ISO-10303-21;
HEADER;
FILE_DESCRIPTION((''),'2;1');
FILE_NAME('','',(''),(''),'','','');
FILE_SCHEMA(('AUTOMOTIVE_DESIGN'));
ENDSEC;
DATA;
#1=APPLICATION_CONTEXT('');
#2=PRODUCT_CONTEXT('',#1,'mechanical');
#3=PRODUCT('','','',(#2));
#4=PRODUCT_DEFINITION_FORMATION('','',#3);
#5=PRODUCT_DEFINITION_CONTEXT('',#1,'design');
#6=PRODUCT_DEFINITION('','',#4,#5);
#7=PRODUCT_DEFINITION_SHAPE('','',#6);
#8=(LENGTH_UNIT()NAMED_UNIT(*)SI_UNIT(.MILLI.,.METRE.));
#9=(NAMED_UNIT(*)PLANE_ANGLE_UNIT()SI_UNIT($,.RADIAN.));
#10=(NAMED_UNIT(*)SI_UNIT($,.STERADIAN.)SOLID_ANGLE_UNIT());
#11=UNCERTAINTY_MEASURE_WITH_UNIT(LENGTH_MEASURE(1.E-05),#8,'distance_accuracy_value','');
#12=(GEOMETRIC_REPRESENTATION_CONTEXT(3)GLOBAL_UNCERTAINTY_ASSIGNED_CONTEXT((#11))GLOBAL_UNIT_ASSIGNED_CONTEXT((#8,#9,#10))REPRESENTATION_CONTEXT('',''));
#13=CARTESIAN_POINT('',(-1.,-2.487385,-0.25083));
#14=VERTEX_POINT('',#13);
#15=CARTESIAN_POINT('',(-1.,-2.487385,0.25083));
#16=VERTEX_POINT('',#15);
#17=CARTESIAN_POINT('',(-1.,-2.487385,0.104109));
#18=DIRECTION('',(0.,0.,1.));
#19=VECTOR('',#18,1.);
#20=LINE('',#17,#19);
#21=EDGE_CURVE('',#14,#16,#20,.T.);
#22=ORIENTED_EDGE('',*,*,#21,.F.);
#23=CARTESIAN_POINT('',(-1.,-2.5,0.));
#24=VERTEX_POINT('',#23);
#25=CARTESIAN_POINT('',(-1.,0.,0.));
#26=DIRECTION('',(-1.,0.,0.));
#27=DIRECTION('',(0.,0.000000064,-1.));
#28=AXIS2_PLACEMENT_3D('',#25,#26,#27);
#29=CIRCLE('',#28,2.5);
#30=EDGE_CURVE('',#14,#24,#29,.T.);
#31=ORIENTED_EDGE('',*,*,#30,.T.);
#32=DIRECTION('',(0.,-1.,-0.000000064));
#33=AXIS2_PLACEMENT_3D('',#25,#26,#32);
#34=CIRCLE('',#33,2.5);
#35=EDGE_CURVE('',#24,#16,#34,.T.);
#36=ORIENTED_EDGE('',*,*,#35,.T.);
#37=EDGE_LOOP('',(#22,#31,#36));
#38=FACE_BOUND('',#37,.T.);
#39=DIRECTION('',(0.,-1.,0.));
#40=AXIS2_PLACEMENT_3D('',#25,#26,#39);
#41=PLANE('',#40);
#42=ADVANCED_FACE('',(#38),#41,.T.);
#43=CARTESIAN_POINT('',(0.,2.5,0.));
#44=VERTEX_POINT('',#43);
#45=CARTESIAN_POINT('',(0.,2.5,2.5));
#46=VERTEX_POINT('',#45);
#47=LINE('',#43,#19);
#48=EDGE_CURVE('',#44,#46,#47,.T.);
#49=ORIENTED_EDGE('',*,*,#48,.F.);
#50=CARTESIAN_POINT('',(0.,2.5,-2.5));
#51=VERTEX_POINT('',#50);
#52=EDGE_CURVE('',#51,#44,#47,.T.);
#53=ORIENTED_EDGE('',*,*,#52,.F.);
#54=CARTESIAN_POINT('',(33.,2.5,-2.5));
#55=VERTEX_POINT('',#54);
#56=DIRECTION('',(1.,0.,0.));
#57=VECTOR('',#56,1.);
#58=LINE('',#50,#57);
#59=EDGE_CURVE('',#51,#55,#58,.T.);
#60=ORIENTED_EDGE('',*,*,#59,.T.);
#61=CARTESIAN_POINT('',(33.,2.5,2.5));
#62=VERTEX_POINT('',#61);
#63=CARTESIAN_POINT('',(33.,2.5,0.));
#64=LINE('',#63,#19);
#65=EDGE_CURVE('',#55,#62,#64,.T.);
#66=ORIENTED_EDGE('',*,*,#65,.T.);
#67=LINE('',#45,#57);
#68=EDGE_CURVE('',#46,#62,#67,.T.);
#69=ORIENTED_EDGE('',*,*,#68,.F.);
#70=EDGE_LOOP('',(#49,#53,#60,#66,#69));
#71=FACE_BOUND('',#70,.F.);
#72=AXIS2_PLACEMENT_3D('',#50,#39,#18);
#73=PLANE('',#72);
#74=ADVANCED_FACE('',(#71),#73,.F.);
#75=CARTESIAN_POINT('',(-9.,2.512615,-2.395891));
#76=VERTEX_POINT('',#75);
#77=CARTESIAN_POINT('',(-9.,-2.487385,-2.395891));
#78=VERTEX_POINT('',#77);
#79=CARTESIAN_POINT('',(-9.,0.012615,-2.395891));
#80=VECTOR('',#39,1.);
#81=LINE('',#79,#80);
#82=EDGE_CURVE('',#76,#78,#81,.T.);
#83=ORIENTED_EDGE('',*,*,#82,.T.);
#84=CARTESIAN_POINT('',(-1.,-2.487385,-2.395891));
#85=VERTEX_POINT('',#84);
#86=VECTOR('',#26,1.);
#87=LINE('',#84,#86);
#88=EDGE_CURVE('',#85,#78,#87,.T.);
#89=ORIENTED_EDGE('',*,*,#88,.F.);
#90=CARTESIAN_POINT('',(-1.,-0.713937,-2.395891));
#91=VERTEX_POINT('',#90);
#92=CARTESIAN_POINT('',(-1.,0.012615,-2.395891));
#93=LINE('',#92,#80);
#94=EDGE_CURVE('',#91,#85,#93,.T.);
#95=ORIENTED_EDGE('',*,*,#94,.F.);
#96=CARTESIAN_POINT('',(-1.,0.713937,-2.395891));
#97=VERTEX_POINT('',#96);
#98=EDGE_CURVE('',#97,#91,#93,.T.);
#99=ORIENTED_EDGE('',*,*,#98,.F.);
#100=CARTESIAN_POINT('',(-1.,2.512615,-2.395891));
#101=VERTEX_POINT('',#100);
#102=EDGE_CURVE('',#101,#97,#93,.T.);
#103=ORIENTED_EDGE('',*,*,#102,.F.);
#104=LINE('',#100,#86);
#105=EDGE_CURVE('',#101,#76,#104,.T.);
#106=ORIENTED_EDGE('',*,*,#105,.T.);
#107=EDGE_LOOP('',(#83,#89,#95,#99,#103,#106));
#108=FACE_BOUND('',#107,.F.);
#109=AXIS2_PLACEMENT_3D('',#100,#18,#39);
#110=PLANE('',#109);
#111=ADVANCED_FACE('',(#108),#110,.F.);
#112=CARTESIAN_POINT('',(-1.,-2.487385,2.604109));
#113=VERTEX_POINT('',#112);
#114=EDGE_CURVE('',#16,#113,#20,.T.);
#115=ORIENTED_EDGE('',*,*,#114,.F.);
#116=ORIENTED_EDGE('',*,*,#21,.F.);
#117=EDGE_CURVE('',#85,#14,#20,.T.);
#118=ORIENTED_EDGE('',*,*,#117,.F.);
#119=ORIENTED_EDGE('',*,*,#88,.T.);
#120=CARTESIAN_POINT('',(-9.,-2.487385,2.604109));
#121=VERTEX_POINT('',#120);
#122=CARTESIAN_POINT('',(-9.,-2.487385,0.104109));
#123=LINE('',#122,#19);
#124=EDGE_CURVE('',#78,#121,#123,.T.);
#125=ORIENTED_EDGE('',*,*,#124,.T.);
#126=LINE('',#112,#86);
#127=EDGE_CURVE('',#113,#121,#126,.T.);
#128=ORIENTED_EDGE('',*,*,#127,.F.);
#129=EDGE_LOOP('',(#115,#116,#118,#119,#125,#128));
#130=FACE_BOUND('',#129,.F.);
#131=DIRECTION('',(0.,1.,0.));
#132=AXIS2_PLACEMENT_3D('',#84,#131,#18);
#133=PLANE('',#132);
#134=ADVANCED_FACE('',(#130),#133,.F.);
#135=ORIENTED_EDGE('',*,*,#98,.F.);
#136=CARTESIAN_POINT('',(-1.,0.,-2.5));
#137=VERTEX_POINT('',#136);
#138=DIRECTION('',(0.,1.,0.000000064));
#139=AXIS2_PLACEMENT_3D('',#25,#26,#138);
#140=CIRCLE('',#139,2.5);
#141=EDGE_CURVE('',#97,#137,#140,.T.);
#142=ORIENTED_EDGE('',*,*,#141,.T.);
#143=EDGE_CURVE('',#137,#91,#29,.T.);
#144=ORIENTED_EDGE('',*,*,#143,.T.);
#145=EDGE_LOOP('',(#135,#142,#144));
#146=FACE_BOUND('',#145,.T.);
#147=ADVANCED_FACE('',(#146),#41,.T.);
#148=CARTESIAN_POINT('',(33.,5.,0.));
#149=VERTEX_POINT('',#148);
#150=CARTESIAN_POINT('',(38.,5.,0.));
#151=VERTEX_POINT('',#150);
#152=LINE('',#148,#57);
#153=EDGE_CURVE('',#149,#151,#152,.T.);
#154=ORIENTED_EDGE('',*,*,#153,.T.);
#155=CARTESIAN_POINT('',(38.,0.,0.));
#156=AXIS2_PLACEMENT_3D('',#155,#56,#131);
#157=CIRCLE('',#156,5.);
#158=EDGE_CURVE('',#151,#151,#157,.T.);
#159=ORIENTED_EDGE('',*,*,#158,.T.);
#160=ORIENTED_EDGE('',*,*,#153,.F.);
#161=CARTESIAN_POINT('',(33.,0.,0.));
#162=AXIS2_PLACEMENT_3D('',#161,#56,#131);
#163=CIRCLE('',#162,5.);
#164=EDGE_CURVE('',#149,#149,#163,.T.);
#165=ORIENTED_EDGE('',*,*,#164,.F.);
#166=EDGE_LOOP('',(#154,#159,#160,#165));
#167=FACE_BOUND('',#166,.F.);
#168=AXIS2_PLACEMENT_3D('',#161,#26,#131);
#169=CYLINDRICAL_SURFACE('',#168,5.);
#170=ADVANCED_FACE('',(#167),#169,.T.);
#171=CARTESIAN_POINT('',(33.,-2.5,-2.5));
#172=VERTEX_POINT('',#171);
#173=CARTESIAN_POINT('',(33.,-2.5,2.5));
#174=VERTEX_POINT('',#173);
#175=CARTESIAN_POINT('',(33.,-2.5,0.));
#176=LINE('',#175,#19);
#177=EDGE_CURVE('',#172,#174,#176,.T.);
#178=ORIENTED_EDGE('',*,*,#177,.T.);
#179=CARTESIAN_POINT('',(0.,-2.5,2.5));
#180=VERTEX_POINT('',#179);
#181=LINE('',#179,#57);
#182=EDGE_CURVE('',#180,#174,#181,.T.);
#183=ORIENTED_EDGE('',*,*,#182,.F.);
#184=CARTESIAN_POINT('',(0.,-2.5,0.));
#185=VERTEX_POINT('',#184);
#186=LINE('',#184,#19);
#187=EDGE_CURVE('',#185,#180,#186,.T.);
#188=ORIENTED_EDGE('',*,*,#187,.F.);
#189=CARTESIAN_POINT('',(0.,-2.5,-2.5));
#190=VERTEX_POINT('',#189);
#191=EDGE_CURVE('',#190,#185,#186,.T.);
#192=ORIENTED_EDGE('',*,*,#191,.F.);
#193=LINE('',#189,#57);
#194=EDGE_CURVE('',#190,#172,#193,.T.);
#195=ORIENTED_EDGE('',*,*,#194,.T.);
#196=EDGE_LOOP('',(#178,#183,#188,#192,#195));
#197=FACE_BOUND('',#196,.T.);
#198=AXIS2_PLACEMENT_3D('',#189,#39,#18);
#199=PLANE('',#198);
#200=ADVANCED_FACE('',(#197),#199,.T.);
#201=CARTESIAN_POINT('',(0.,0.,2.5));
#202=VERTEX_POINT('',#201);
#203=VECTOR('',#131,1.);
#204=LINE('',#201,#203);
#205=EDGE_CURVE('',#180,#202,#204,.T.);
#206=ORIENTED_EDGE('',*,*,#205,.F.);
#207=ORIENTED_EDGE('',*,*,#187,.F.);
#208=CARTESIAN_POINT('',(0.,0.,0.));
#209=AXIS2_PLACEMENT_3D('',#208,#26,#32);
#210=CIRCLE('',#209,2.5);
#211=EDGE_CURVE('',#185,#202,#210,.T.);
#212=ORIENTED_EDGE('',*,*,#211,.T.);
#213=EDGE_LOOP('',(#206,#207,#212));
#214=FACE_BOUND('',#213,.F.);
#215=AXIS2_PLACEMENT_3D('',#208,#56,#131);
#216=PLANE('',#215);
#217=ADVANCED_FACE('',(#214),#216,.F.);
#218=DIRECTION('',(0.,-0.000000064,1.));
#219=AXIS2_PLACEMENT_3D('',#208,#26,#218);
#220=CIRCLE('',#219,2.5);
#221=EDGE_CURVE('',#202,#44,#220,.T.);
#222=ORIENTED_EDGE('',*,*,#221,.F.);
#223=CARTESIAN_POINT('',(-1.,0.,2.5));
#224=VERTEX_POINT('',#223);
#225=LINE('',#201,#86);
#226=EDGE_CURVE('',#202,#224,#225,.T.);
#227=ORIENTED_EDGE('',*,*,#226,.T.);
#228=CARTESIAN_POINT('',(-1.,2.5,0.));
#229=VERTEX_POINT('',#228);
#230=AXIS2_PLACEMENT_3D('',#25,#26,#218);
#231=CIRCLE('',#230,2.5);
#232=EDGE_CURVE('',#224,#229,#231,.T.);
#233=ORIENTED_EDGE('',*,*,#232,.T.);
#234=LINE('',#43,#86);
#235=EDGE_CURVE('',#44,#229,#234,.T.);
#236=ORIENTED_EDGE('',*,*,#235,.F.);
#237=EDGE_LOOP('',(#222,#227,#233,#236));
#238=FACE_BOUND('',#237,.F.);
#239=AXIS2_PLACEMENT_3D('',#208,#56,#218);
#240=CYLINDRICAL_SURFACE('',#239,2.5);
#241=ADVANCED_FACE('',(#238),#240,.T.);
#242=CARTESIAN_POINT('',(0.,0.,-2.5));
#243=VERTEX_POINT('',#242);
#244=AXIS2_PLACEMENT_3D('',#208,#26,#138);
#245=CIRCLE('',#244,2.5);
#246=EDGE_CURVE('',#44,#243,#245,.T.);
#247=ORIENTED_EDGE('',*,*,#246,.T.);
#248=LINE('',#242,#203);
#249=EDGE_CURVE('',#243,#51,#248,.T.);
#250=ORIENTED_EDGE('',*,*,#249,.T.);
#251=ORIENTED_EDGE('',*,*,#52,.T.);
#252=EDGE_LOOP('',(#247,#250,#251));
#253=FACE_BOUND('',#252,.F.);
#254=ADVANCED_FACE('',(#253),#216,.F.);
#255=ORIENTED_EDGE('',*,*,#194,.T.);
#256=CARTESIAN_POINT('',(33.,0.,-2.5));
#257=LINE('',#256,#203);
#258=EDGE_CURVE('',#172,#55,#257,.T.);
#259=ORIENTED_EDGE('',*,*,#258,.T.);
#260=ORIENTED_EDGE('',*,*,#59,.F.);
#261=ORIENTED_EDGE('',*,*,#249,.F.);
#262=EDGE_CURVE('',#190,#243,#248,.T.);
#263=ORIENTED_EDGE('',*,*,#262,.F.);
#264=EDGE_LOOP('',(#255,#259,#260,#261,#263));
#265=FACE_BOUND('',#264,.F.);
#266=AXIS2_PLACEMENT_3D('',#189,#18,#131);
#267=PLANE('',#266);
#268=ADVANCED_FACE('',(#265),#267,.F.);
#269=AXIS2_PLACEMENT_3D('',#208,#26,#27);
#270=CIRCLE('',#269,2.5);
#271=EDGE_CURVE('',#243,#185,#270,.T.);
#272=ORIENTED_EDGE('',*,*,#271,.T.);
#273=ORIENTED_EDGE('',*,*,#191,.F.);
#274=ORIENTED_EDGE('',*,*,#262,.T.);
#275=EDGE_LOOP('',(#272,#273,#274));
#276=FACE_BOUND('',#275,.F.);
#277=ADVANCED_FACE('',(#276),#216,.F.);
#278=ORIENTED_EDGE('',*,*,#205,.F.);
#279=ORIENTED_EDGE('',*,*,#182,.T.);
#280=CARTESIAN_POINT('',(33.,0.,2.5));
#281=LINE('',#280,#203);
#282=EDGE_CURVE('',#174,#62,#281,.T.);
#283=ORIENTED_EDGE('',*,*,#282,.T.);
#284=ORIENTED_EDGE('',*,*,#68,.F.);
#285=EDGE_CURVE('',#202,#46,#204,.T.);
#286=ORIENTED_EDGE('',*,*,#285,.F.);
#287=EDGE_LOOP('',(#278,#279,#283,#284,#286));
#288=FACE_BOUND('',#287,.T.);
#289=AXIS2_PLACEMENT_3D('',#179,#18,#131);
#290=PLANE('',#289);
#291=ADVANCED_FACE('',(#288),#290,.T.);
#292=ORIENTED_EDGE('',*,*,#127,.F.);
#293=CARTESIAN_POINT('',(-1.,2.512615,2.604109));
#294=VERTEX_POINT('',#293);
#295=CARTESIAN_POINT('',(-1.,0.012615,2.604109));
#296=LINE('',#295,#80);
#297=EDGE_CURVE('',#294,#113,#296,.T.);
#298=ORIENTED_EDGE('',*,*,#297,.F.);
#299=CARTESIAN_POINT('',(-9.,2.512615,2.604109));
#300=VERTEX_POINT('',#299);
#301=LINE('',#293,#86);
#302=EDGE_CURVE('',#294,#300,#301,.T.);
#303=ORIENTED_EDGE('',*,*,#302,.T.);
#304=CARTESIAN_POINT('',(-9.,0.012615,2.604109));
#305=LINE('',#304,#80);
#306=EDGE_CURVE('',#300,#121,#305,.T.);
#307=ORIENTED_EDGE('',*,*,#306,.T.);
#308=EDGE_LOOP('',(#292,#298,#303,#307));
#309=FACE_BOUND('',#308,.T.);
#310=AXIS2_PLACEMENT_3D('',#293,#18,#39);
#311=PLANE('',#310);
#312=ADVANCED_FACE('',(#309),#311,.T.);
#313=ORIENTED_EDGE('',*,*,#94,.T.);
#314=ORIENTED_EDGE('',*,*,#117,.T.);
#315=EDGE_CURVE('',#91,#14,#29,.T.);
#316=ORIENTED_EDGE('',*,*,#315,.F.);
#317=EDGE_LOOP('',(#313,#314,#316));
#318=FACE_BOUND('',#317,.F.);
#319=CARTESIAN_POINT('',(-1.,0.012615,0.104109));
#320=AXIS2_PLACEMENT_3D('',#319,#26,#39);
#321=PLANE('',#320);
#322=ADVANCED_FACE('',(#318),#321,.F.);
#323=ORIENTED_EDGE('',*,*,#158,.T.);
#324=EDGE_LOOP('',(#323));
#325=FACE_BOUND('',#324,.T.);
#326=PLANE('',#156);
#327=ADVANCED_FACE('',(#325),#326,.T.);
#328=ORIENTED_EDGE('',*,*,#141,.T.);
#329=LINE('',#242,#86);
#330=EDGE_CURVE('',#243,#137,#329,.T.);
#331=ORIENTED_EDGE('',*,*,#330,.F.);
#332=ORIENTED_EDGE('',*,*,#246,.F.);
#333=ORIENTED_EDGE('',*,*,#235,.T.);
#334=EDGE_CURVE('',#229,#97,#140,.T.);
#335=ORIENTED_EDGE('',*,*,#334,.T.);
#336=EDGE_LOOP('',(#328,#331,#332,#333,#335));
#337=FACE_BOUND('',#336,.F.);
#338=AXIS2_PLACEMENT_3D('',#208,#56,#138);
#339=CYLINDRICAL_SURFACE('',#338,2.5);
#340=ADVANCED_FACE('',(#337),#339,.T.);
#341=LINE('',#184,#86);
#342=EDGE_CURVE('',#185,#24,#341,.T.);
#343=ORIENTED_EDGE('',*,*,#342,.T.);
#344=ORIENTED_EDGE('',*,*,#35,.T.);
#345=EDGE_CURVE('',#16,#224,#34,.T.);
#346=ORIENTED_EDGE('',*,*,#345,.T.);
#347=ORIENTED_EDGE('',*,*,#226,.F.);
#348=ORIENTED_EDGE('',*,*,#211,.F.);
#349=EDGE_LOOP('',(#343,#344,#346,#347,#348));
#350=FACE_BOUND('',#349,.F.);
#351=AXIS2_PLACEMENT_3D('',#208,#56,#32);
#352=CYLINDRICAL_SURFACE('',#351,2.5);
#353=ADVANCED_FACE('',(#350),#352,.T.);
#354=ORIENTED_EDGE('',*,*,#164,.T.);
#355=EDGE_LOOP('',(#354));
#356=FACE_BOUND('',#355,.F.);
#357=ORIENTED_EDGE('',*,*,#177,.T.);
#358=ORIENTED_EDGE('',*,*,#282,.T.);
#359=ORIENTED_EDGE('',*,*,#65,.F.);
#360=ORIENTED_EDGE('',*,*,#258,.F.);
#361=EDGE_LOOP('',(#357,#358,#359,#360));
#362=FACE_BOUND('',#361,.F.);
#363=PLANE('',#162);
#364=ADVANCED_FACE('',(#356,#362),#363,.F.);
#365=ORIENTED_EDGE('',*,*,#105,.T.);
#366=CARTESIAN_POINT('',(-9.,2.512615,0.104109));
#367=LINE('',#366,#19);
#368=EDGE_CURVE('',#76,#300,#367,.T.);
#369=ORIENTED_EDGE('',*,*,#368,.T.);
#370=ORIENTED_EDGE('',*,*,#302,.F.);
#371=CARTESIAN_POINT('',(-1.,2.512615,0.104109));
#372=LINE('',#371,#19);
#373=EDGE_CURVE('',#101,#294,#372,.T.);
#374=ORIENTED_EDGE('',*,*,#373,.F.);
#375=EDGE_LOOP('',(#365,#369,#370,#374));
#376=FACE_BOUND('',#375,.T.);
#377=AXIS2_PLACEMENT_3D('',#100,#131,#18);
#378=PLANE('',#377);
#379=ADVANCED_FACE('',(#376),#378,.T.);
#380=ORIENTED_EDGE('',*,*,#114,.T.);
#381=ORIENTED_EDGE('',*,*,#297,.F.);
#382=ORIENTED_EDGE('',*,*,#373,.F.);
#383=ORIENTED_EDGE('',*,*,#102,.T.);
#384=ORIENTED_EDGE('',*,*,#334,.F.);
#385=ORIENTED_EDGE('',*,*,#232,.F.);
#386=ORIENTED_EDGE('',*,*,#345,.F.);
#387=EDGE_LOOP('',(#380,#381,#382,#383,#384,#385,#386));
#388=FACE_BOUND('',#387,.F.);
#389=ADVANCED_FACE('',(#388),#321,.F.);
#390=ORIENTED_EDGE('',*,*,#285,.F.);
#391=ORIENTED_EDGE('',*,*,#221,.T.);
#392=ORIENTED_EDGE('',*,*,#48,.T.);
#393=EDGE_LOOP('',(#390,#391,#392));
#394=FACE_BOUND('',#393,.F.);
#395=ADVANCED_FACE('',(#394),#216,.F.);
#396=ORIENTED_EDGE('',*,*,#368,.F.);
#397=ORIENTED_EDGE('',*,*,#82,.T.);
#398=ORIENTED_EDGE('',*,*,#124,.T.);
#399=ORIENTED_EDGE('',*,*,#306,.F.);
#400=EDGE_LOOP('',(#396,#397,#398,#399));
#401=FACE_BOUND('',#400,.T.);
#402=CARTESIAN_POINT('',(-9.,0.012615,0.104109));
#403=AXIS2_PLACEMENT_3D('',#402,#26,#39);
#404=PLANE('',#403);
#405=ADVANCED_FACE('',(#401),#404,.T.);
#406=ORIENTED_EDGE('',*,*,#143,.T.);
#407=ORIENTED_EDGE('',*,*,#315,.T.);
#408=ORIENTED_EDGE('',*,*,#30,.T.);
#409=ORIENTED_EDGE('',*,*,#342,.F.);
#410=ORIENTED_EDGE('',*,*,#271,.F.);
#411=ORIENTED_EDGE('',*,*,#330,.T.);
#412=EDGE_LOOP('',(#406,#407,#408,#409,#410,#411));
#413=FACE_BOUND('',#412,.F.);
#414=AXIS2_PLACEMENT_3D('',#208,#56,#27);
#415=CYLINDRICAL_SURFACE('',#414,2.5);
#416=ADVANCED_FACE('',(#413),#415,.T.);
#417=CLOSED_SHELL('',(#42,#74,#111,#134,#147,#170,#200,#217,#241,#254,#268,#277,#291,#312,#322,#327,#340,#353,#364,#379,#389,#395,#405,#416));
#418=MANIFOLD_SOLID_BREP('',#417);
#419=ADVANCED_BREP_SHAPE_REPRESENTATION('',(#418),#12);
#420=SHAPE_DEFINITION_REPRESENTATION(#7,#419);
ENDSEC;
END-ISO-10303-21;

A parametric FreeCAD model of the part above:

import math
import FreeCAD as App
import Part
import Sketcher
from FreeCAD import Vector

doc = App.newDocument("Part")
body = doc.addObject("PartDesign::Body", "Body")

# Sketch on YZ plane
sketch1 = doc.addObject("Sketcher::SketchObject", "Sketch")
body.addObject(sketch1)
sketch1.AttachmentSupport = (doc.YZ_Plane, [""])
sketch1.MapMode = "FlatFace"
sketch1.addGeometry(Part.LineSegment(Vector(-2, 2, 0), Vector(-2, -2, 0)), False)
sketch1.addGeometry(Part.LineSegment(Vector(-2, -2, 0), Vector(2, -2, 0)), False)
sketch1.addGeometry(Part.LineSegment(Vector(2, -2, 0), Vector(2, 2, 0)), False)
sketch1.addGeometry(Part.LineSegment(Vector(2, 2, 0), Vector(-2, 2, 0)), False)
sketch1.addConstraint(Sketcher.Constraint("Coincident", 0, 2, 1, 1))
sketch1.addConstraint(Sketcher.Constraint("Coincident", 1, 2, 2, 1))
sketch1.addConstraint(Sketcher.Constraint("Coincident", 2, 2, 3, 1))
sketch1.addConstraint(Sketcher.Constraint("Coincident", 3, 2, 0, 1))
sketch1.addConstraint(Sketcher.Constraint("Vertical", 0))
sketch1.addConstraint(Sketcher.Constraint("Horizontal", 1))
sketch1.addConstraint(Sketcher.Constraint("Vertical", 2))
sketch1.addConstraint(Sketcher.Constraint("Horizontal", 3))
sketch1.addConstraint(Sketcher.Constraint("Symmetric", 0, 2, 2, 2, -1, 1))
sketch1.addConstraint(Sketcher.Constraint("Equal", 3, 0))
sketch1.addConstraint(Sketcher.Constraint("DistanceX", 1, 1, 1, 2, 5.0))
pad1 = doc.addObject("PartDesign::Pad", "Pad")
body.addObject(pad1)
pad1.Profile = sketch1
pad1.Length = 33

# Sketch on YZ plane
sketch2 = doc.addObject("Sketcher::SketchObject", "Sketch001")
body.addObject(sketch2)
sketch2.AttachmentSupport = (doc.YZ_Plane, [""])
sketch2.MapMode = "FlatFace"
sketch2.AttachmentOffset = App.Placement(Vector(0, 0, 33), App.Rotation())
sketch2.addGeometry(Part.Circle(Vector(0, 0, 0), Vector(0, 0, 1), 5), False)
sketch2.addConstraint(Sketcher.Constraint("Coincident", 0, 3, -1, 1))
sketch2.addConstraint(Sketcher.Constraint("Diameter", 0, 10.0))
pad2 = doc.addObject("PartDesign::Pad", "Pad001")
body.addObject(pad2)
pad2.Profile = sketch2
pad2.Length = 5

# Sketch on YZ plane
sketch3 = doc.addObject("Sketcher::SketchObject", "Sketch002")
body.addObject(sketch3)
sketch3.AttachmentSupport = (doc.YZ_Plane, [""])
sketch3.MapMode = "FlatFace"
sketch3.addGeometry(Part.ArcOfCircle(Part.Circle(Vector(0, 0, 0), Vector(0, 0, 1), 2.5), math.radians(180), math.radians(270)), False)
sketch3.addGeometry(Part.ArcOfCircle(Part.Circle(Vector(0, 0, 0), Vector(0, 0, 1), 2.5), math.radians(90), math.radians(180)), False)
sketch3.addGeometry(Part.ArcOfCircle(Part.Circle(Vector(0, 0, 0), Vector(0, 0, 1), 2.5), math.radians(0), math.radians(90)), False)
sketch3.addGeometry(Part.ArcOfCircle(Part.Circle(Vector(0, 0, 0), Vector(0, 0, 1), 2.5), math.radians(-90), math.radians(0)), False)
sketch3.addConstraint(Sketcher.Constraint("Tangent", 0, 1, 1, 2))
sketch3.addConstraint(Sketcher.Constraint("Tangent", 1, 1, 2, 2))
sketch3.addConstraint(Sketcher.Constraint("Tangent", 2, 1, 3, 2))
sketch3.addConstraint(Sketcher.Constraint("Tangent", 3, 1, 0, 2))
sketch3.addConstraint(Sketcher.Constraint("Coincident", 0, 3, -1, 1))
sketch3.addConstraint(Sketcher.Constraint("Equal", 0, 1))
sketch3.addConstraint(Sketcher.Constraint("PointOnObject", 0, 1, -1))
sketch3.addConstraint(Sketcher.Constraint("PointOnObject", 1, 1, -2))
sketch3.addConstraint(Sketcher.Constraint("PointOnObject", 2, 1, -1))
sketch3.addConstraint(Sketcher.Constraint("PointOnObject", 3, 1, -2))
sketch3.addConstraint(Sketcher.Constraint("Radius", 0, 2.5))
pad3 = doc.addObject("PartDesign::Pad", "Pad002")
body.addObject(pad3)
pad3.Profile = sketch3
pad3.Length = 1
pad3.Reversed = True

# Sketch on YZ plane
sketch4 = doc.addObject("Sketcher::SketchObject", "Sketch003")
body.addObject(sketch4)
sketch4.AttachmentSupport = (doc.YZ_Plane, [""])
sketch4.MapMode = "FlatFace"
sketch4.AttachmentOffset = App.Placement(Vector(0, 0, -1), App.Rotation())
sketch4.addGeometry(Part.LineSegment(Vector(3, 3, 0), Vector(3, -2, 0)), False)
sketch4.addGeometry(Part.LineSegment(Vector(3, -2, 0), Vector(-2, -2, 0)), False)
sketch4.addGeometry(Part.LineSegment(Vector(-2, -2, 0), Vector(-2, 3, 0)), False)
sketch4.addGeometry(Part.LineSegment(Vector(-2, 3, 0), Vector(3, 3, 0)), False)
sketch4.addConstraint(Sketcher.Constraint("Coincident", 0, 2, 1, 1))
sketch4.addConstraint(Sketcher.Constraint("Coincident", 1, 2, 2, 1))
sketch4.addConstraint(Sketcher.Constraint("Coincident", 2, 2, 3, 1))
sketch4.addConstraint(Sketcher.Constraint("Coincident", 3, 2, 0, 1))
sketch4.addConstraint(Sketcher.Constraint("Vertical", 0))
sketch4.addConstraint(Sketcher.Constraint("Horizontal", 1))
sketch4.addConstraint(Sketcher.Constraint("Vertical", 2))
sketch4.addConstraint(Sketcher.Constraint("Horizontal", 3))
sketch4.addConstraint(Sketcher.Constraint("Equal", 3, 0))
sketch4.addConstraint(Sketcher.Constraint("DistanceX", 1, 2, 1, 1, 5.0))
sketch4.addConstraint(Sketcher.Constraint("DistanceY", 0, 2, -1, 1, 2.395891))
sketch4.addConstraint(Sketcher.Constraint("DistanceX", -1, 1, 0, 2, 2.512615))
pad4 = doc.addObject("PartDesign::Pad", "Pad003")
body.addObject(pad4)
pad4.Profile = sketch4
pad4.Length = 8
pad4.Reversed = True

doc.recompute()
